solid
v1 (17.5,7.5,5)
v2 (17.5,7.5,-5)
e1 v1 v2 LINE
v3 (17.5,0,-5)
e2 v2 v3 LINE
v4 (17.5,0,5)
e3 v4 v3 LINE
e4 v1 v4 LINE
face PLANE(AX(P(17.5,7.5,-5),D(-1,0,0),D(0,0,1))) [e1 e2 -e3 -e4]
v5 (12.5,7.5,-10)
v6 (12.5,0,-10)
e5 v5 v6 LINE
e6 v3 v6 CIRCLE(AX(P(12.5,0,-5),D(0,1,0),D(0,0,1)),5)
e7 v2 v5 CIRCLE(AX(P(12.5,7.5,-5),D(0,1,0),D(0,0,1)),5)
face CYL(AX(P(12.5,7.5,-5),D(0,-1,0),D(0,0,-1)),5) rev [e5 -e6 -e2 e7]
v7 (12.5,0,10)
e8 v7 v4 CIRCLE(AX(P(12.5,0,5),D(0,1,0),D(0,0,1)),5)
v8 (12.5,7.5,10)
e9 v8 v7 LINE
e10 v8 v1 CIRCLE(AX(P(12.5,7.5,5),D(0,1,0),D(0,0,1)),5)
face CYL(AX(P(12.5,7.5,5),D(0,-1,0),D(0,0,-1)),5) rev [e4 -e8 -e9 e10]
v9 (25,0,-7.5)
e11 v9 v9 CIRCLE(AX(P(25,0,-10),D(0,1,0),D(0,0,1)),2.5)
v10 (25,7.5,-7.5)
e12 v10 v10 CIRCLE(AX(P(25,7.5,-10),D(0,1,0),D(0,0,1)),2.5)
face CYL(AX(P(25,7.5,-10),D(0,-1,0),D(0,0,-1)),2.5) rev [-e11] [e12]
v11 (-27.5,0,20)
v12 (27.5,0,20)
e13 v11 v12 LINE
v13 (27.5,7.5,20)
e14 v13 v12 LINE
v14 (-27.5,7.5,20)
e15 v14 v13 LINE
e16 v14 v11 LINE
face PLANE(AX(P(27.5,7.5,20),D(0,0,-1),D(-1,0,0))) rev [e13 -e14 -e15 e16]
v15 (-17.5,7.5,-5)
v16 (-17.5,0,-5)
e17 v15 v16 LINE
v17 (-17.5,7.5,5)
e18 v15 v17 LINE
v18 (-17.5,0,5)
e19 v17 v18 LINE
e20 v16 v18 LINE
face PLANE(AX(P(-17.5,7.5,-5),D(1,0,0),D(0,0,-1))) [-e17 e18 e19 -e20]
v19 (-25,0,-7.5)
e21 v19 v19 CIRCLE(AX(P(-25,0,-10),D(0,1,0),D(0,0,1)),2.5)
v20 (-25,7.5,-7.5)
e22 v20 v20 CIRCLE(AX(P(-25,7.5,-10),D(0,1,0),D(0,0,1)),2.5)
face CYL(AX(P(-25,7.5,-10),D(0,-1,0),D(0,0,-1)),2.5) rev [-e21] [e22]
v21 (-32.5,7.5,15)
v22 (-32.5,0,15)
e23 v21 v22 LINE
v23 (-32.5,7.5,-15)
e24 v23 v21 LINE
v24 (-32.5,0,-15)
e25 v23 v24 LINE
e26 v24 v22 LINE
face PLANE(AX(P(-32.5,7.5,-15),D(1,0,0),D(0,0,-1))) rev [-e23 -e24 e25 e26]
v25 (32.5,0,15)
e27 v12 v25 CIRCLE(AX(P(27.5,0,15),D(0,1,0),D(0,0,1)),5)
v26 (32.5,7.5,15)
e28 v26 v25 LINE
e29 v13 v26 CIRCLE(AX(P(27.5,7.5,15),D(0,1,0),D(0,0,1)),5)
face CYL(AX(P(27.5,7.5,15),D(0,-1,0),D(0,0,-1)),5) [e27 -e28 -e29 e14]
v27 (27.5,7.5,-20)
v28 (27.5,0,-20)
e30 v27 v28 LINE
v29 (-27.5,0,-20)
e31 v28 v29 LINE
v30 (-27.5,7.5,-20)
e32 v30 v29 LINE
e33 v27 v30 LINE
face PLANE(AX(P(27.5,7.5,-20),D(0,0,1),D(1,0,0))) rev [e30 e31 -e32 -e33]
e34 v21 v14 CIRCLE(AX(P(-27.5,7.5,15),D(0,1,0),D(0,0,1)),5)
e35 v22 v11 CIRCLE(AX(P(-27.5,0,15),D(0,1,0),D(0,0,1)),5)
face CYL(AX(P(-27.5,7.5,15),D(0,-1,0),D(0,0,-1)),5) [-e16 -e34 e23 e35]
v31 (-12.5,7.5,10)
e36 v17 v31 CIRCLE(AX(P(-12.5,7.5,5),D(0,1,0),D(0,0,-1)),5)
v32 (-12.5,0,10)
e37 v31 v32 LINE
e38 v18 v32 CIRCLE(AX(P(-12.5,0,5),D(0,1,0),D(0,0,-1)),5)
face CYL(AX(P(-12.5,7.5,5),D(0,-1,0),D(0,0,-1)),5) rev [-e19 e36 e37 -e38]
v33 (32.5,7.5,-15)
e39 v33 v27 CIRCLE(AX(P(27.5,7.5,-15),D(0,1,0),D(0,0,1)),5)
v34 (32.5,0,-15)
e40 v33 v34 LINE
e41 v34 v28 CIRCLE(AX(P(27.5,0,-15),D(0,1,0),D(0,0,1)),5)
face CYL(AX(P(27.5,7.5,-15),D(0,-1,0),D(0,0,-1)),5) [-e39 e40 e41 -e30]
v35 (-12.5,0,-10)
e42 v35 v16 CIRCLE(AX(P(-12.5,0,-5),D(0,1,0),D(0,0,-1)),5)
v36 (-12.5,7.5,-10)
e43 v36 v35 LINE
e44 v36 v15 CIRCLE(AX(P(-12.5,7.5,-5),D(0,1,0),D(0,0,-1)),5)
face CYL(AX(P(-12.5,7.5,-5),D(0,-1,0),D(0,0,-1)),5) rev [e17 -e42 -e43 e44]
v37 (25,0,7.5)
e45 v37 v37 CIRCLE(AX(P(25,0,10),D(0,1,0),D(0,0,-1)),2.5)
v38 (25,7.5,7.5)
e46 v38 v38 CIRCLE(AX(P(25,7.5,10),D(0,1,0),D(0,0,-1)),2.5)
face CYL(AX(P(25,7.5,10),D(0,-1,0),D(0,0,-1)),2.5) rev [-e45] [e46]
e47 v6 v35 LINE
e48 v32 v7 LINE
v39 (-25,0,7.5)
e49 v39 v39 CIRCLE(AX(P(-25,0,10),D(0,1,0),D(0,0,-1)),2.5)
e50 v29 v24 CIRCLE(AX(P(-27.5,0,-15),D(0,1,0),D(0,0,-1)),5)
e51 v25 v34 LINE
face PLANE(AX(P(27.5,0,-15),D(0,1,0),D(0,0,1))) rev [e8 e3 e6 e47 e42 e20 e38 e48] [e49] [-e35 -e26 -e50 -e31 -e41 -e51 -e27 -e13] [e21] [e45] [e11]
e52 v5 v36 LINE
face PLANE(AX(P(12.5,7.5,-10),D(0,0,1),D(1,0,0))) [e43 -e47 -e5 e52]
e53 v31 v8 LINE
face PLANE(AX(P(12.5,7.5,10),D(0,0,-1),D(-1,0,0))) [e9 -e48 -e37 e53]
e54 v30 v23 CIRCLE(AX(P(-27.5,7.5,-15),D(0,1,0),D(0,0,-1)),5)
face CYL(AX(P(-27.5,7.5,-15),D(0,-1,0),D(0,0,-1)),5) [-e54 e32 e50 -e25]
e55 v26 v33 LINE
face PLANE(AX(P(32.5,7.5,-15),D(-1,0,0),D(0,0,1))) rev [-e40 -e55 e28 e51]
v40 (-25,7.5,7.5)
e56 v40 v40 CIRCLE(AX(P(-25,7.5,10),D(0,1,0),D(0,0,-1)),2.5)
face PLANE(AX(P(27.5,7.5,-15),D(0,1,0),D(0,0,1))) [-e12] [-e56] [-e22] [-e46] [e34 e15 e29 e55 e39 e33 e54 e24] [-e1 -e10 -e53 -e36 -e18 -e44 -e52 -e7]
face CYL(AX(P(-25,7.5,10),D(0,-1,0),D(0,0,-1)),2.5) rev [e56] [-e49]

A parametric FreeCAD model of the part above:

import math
import FreeCAD as App
import Part
import Sketcher
Q = App.Units.Quantity

doc = App.newDocument("Part")
body = doc.addObject("PartDesign::Body", "Body")

sketch1 = doc.addObject("Sketcher::SketchObject", "Sketch")
body.addObject(sketch1)
sketch1.AttachmentSupport = (doc.XZ_Plane, [""])
sketch1.MapMode = "FlatFace"
sketch1.addGeometry([
    Part.LineSegment(App.Vector(27.5, -20, 0), App.Vector(-27.5, -20, 0)),
    Part.ArcOfCircle(Part.Circle(App.Vector(-27.5, -15, 0), App.Vector(0, 0, 1), 5), math.radians(180), math.radians(270)),
    Part.LineSegment(App.Vector(-32.5, -15, 0), App.Vector(-32.5, 15, 0)),
    Part.ArcOfCircle(Part.Circle(App.Vector(-27.5, 15, 0), App.Vector(0, 0, 1), 5), math.radians(90), math.radians(180)),
    Part.LineSegment(App.Vector(-27.5, 20, 0), App.Vector(27.5, 20, 0)),
    Part.ArcOfCircle(Part.Circle(App.Vector(27.5, 15, 0), App.Vector(0, 0, 1), 5), math.radians(0), math.radians(90)),
    Part.LineSegment(App.Vector(32.5, 15, 0), App.Vector(32.5, -15, 0)),
    Part.ArcOfCircle(Part.Circle(App.Vector(27.5, -15, 0), App.Vector(0, 0, 1), 5), math.radians(-90), math.radians(0)),
    Part.Circle(App.Vector(-25, 10, 0), App.Vector(0, 0, 1), 2.5),
    Part.Circle(App.Vector(25, 10, 0), App.Vector(0, 0, 1), 2.5),
    Part.Circle(App.Vector(-25, -10, 0), App.Vector(0, 0, 1), 2.5),
    Part.LineSegment(App.Vector(-12.5, -10, 0), App.Vector(12.5, -10, 0)),
    Part.ArcOfCircle(Part.Circle(App.Vector(12.5, -5, 0), App.Vector(0, 0, 1), 5), math.radians(-90), math.radians(0)),
    Part.LineSegment(App.Vector(17.5, -5, 0), App.Vector(17.5, 5, 0)),
    Part.ArcOfCircle(Part.Circle(App.Vector(12.5, 5, 0), App.Vector(0, 0, 1), 5), math.radians(0), math.radians(90)),
    Part.LineSegment(App.Vector(12.5, 10, 0), App.Vector(-12.5, 10, 0)),
    Part.ArcOfCircle(Part.Circle(App.Vector(-12.5, 5, 0), App.Vector(0, 0, 1), 5), math.radians(90), math.radians(180)),
    Part.LineSegment(App.Vector(-17.5, 5, 0), App.Vector(-17.5, -5, 0)),
    Part.ArcOfCircle(Part.Circle(App.Vector(-12.5, -5, 0), App.Vector(0, 0, 1), 5), math.radians(180), math.radians(270)),
    Part.Circle(App.Vector(25, -10, 0), App.Vector(0, 0, 1), 2.5),
], False)
sketch1.addConstraint([
    Sketcher.Constraint("Tangent", 0, 2, 1, 2),
    Sketcher.Constraint("Tangent", 1, 1, 2, 1),
    Sketcher.Constraint("Tangent", 2, 2, 3, 2),
    Sketcher.Constraint("Tangent", 3, 1, 4, 1),
    Sketcher.Constraint("Tangent", 4, 2, 5, 2),
    Sketcher.Constraint("Tangent", 5, 1, 6, 1),
    Sketcher.Constraint("Tangent", 6, 2, 7, 2),
    Sketcher.Constraint("Tangent", 7, 1, 0, 1),
    Sketcher.Constraint("Tangent", 11, 2, 12, 1),
    Sketcher.Constraint("Tangent", 12, 2, 13, 1),
    Sketcher.Constraint("Tangent", 13, 2, 14, 1),
    Sketcher.Constraint("Tangent", 14, 2, 15, 1),
    Sketcher.Constraint("Tangent", 15, 2, 16, 1),
    Sketcher.Constraint("Tangent", 16, 2, 17, 1),
    Sketcher.Constraint("Tangent", 17, 2, 18, 1),
    Sketcher.Constraint("Tangent", 18, 2, 11, 1),
    Sketcher.Constraint("Horizontal", 0),
    Sketcher.Constraint("Vertical", 2),
    Sketcher.Constraint("Horizontal", 4),
    Sketcher.Constraint("Vertical", 6),
    Sketcher.Constraint("Horizontal", 11),
    Sketcher.Constraint("Vertical", 13),
    Sketcher.Constraint("Horizontal", 15),
    Sketcher.Constraint("Vertical", 17),
    Sketcher.Constraint("Equal", 1, 3),
    Sketcher.Constraint("Equal", 3, 5),
    Sketcher.Constraint("Equal", 5, 7),
    Sketcher.Constraint("Equal", 8, 9),
    Sketcher.Constraint("Equal", 9, 10),
    Sketcher.Constraint("Equal", 7, 12),
    Sketcher.Constraint("Equal", 12, 14),
    Sketcher.Constraint("Equal", 14, 16),
    Sketcher.Constraint("Equal", 16, 18),
    Sketcher.Constraint("Equal", 10, 19),
    Sketcher.Constraint("Symmetric", 1, 3, 5, 3, -1, 1),
    Sketcher.Constraint("Symmetric", 9, 3, 10, 3, -1, 1),
    Sketcher.Constraint("Symmetric", 12, 3, 16, 3, -1, 1),
    Sketcher.Constraint("Symmetric", 8, 3, 19, 3, -1, 1),
    Sketcher.Constraint("Symmetric", 8, 3, 9, 3, -2),
    Sketcher.Constraint("Horizontal", 19, 3, 11, 2),
    Sketcher.Constraint("Diameter", 8, Q("5 mm")),
    Sketcher.Constraint("Radius", 1, Q("5 mm")),
    Sketcher.Constraint("DistanceX", 0, 2, 0, 1, Q("55 mm")),
    Sketcher.Constraint("DistanceX", 11, 1, 11, 2, Q("25 mm")),
    Sketcher.Constraint("DistanceY", 2, 1, 2, 2, Q("30 mm")),
    Sketcher.Constraint("DistanceY", 13, 1, 13, 2, Q("10 mm")),
    Sketcher.Constraint("DistanceX", 8, 3, -1, 1, Q("25 mm")),
])
pad1 = doc.addObject("PartDesign::Pad", "Pad")
body.addObject(pad1)
pad1.Profile = sketch1
pad1.Length = 7.5
pad1.Reversed = True

doc.recompute()
